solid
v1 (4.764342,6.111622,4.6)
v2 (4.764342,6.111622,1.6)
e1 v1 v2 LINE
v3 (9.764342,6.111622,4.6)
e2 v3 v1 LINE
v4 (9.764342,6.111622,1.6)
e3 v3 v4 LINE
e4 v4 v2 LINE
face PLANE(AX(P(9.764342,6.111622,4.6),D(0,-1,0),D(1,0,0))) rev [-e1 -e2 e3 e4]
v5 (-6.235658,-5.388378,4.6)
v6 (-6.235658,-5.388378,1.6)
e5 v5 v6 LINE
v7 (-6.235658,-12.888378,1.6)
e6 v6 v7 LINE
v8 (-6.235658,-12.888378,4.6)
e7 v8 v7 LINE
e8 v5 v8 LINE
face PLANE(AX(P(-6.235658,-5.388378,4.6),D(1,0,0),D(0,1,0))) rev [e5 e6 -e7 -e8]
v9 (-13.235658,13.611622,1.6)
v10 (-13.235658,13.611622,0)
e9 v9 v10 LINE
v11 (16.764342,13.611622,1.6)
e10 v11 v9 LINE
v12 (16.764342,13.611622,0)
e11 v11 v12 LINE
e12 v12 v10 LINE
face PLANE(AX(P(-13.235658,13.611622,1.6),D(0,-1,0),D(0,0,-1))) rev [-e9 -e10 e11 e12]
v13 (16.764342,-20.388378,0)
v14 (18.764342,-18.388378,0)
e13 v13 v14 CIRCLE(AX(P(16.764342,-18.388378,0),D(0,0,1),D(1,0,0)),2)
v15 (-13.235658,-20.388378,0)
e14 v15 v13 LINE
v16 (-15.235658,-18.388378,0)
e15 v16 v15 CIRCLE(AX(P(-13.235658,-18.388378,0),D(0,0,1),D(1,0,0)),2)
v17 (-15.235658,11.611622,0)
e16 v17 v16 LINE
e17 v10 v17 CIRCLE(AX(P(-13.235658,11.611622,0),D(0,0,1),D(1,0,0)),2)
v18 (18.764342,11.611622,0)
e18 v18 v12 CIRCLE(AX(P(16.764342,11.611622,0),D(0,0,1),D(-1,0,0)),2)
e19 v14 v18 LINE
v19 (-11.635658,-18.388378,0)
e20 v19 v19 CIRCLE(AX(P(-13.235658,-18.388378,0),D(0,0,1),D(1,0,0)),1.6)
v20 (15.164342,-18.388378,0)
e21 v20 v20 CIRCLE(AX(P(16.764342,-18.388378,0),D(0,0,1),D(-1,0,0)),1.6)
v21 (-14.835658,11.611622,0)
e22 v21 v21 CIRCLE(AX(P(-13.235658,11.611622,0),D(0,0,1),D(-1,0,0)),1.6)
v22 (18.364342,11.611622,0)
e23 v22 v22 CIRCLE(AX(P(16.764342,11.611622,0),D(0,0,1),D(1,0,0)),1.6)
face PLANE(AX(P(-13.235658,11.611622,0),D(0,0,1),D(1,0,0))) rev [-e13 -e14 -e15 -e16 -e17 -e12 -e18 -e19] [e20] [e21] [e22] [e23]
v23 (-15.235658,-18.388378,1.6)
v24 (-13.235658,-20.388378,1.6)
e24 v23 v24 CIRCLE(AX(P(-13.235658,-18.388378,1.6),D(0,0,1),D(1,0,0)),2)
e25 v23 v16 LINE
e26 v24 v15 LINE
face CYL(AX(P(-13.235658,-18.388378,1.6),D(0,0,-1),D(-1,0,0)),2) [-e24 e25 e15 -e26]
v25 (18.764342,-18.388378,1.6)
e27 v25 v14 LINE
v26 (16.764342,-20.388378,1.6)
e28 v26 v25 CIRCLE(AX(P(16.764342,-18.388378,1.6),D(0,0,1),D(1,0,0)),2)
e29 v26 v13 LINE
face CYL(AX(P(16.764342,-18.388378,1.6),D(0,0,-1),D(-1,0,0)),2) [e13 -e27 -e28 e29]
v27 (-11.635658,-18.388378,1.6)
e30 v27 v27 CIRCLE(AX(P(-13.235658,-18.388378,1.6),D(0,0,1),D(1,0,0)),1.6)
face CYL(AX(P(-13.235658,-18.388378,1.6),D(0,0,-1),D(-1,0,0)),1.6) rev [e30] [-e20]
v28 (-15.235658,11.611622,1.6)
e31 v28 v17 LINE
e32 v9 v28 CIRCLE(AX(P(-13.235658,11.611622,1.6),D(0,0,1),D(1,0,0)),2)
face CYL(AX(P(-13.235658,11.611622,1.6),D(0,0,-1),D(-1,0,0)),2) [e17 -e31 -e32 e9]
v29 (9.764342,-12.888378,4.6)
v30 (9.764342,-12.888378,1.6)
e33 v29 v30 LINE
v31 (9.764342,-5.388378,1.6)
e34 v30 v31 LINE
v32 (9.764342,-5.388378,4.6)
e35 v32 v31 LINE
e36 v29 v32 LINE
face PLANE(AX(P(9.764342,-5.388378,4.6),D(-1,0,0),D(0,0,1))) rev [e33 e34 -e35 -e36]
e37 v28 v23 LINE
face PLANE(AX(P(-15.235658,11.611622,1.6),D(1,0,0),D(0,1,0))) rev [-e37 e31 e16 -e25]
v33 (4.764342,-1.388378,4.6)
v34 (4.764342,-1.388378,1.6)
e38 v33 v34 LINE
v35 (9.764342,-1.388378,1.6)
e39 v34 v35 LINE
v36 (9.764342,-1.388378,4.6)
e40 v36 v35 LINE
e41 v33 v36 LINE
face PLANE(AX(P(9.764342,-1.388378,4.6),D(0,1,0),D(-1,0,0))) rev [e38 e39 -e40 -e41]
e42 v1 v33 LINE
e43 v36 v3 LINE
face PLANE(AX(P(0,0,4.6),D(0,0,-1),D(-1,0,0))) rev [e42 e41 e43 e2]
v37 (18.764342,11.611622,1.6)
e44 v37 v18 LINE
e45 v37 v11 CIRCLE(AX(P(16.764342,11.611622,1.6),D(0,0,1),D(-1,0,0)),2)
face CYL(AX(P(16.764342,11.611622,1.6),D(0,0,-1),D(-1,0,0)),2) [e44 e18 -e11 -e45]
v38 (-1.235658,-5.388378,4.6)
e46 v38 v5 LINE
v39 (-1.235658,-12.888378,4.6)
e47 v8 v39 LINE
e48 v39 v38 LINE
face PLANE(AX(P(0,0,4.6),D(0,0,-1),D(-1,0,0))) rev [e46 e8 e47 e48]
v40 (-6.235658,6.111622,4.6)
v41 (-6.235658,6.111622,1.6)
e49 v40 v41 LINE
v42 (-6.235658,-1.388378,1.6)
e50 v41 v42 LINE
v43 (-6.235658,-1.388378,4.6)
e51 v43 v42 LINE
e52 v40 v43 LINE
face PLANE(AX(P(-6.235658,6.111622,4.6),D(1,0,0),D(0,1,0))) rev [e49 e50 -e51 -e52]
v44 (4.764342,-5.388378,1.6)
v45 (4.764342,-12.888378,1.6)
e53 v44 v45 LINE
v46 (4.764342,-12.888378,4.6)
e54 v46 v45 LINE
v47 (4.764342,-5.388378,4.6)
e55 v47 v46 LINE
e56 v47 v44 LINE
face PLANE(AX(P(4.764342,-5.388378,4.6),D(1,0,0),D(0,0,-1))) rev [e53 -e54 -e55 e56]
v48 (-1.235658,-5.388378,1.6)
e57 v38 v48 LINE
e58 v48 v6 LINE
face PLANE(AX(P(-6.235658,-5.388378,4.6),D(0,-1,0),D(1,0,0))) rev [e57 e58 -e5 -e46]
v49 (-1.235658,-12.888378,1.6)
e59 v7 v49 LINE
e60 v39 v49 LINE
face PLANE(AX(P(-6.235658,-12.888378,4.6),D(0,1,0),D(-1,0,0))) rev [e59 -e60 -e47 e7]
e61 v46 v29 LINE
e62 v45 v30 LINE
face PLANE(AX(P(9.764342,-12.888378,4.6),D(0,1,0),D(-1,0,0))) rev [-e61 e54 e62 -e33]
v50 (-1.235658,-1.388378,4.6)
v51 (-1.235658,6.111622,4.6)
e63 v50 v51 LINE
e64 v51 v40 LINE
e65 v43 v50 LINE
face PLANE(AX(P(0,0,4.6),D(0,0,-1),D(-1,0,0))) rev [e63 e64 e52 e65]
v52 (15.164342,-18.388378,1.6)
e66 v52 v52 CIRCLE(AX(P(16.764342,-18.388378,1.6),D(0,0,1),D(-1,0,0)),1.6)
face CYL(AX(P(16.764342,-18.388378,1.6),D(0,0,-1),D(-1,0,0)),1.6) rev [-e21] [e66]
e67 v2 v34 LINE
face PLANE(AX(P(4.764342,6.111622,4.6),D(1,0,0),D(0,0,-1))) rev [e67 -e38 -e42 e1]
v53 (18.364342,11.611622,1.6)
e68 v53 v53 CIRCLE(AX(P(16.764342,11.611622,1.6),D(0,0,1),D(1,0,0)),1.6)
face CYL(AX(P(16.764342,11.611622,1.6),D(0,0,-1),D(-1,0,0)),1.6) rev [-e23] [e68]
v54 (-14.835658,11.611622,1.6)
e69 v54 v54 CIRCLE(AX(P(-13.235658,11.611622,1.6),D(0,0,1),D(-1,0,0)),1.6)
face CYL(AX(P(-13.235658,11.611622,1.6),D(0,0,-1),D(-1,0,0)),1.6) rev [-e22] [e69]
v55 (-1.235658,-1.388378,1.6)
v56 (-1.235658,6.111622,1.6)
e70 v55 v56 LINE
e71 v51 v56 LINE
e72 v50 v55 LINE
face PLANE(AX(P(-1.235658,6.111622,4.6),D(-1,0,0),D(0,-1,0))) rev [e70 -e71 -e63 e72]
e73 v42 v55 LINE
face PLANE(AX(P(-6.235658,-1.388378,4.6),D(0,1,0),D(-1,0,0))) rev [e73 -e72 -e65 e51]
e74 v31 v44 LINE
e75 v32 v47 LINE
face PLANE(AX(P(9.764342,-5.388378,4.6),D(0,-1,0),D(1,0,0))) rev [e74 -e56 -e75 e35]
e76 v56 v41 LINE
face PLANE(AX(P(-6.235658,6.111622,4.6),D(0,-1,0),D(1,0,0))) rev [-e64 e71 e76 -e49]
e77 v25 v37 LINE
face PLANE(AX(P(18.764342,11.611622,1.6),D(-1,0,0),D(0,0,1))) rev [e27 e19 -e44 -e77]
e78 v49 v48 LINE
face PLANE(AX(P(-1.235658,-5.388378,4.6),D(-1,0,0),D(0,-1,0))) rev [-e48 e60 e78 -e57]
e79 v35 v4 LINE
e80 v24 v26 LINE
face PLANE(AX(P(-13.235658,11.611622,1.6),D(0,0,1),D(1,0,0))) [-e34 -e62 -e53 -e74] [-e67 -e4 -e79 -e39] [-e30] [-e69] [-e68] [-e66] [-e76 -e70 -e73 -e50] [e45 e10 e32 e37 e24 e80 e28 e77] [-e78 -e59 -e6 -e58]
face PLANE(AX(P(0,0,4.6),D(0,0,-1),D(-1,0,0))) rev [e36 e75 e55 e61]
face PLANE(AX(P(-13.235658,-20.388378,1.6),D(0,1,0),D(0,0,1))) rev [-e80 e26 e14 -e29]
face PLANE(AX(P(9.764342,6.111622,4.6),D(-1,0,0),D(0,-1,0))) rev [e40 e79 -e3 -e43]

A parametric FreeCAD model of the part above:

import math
import FreeCAD as App
import Part
import Sketcher
Q = App.Units.Quantity


def add_polygon(sketch, points):
    """Adds a closed chain of lines whose ends are joined by coincident constraints."""
    first, n = sketch.GeometryCount, len(points)
    for a, b in zip(points, points[1:] + points[:1]):
        sketch.addGeometry(Part.LineSegment(App.Vector(*a, 0), App.Vector(*b, 0)), False)
    for i in range(n):
        sketch.addConstraint(Sketcher.Constraint("Coincident", first + i, 2, first + (i + 1) % n, 1))

doc = App.newDocument("Part")
body = doc.addObject("PartDesign::Body", "Body")

# Sketch on XY plane
sketch1 = doc.addObject("Sketcher::SketchObject", "Sketch")
body.addObject(sketch1)
sketch1.AttachmentSupport = (doc.XY_Plane, [""])
sketch1.MapMode = "FlatFace"
sketch1.addGeometry([
    Part.LineSegment(App.Vector(16.8, 13.6, 0), App.Vector(-13.2, 13.6, 0)),  # 0
    Part.ArcOfCircle(Part.Circle(App.Vector(-13.2, 11.6, 0), App.Vector(0, 0, 1), 2), math.radians(90), math.radians(180)),  # 1
    Part.LineSegment(App.Vector(-15.2, 11.6, 0), App.Vector(-15.2, -18.4, 0)),  # 2
    Part.ArcOfCircle(Part.Circle(App.Vector(-13.2, -18.4, 0), App.Vector(0, 0, 1), 2), math.radians(180), math.radians(270)),  # 3
    Part.LineSegment(App.Vector(-13.2, -20.4, 0), App.Vector(16.8, -20.4, 0)),  # 4
    Part.ArcOfCircle(Part.Circle(App.Vector(16.8, -18.4, 0), App.Vector(0, 0, 1), 2), math.radians(-90), math.radians(0)),  # 5
    Part.LineSegment(App.Vector(18.8, -18.4, 0), App.Vector(18.8, 11.6, 0)),  # 6
    Part.ArcOfCircle(Part.Circle(App.Vector(16.8, 11.6, 0), App.Vector(0, 0, 1), 2), math.radians(0), math.radians(90)),  # 7
    Part.Circle(App.Vector(16.8, -18.4, 0), App.Vector(0, 0, 1), 1.6),  # 8
    Part.Circle(App.Vector(-13.2, -18.4, 0), App.Vector(0, 0, 1), 1.6),  # 9
    Part.Circle(App.Vector(16.8, 11.6, 0), App.Vector(0, 0, 1), 1.6),  # 10
    Part.Circle(App.Vector(-13.2, 11.6, 0), App.Vector(0, 0, 1), 1.6),  # 11
], False)
sketch1.addConstraint([
    Sketcher.Constraint("Tangent", 0, 2, 1, 1),
    Sketcher.Constraint("Tangent", 1, 2, 2, 1),
    Sketcher.Constraint("Tangent", 2, 2, 3, 1),
    Sketcher.Constraint("Tangent", 3, 2, 4, 1),
    Sketcher.Constraint("Tangent", 4, 2, 5, 1),
    Sketcher.Constraint("Tangent", 5, 2, 6, 1),
    Sketcher.Constraint("Tangent", 6, 2, 7, 1),
    Sketcher.Constraint("Tangent", 7, 2, 0, 1),
    Sketcher.Constraint("Horizontal", 0),
    Sketcher.Constraint("Vertical", 2),
    Sketcher.Constraint("Horizontal", 4),
    Sketcher.Constraint("Vertical", 6),
    Sketcher.Constraint("Coincident", 8, 3, 5, 3),
    Sketcher.Constraint("Coincident", 9, 3, 3, 3),
    Sketcher.Constraint("Coincident", 10, 3, 7, 3),
    Sketcher.Constraint("Coincident", 11, 3, 1, 3),
    Sketcher.Constraint("Equal", 1, 3),
    Sketcher.Constraint("Equal", 3, 5),
    Sketcher.Constraint("Equal", 5, 7),
    Sketcher.Constraint("Equal", 8, 9),
    Sketcher.Constraint("Equal", 9, 10),
    Sketcher.Constraint("Equal", 10, 11),
    Sketcher.Constraint("Equal", 4, 2),
    Sketcher.Constraint("Radius", 1, Q("2 mm")),
    Sketcher.Constraint("Diameter", 8, Q("3.2 mm")),
    Sketcher.Constraint("DistanceX", 0, 2, 0, 1, Q("30 mm")),
    Sketcher.Constraint("DistanceX", 1, 3, -1, 1, Q("13.235658 mm")),
    Sketcher.Constraint("DistanceY", -1, 1, 1, 3, Q("11.611622 mm")),
])
pad1 = doc.addObject("PartDesign::Pad", "Pad")
body.addObject(pad1)
pad1.Profile = sketch1
pad1.Length = 1.6

# Sketch on XY plane
sketch2 = doc.addObject("Sketcher::SketchObject", "Sketch001")
body.addObject(sketch2)
sketch2.AttachmentSupport = (doc.XY_Plane, [""])
sketch2.MapMode = "FlatFace"
sketch2.AttachmentOffset = App.Placement(App.Vector(0, 0, 1.6), App.Rotation())
add_polygon(sketch2, [(5, 6), (5, -1), (10, -1), (10, 6)])  # lines 0-3
add_polygon(sketch2, [(5, -5), (5, -13), (10, -13), (10, -5)])  # lines 4-7
add_polygon(sketch2, [(-6, -5), (-6, -13), (-1, -13), (-1, -5)])  # lines 8-11
add_polygon(sketch2, [(-6, 6), (-6, -1), (-1, -1), (-1, 6)])  # lines 12-15
sketch2.addConstraint([
    Sketcher.Constraint("Vertical", 0),
    Sketcher.Constraint("Horizontal", 1),
    Sketcher.Constraint("Vertical", 2),
    Sketcher.Constraint("Horizontal", 3),
    Sketcher.Constraint("Vertical", 4),
    Sketcher.Constraint("Horizontal", 5),
    Sketcher.Constraint("Vertical", 6),
    Sketcher.Constraint("Horizontal", 7),
    Sketcher.Constraint("Vertical", 8),
    Sketcher.Constraint("Horizontal", 9),
    Sketcher.Constraint("Vertical", 10),
    Sketcher.Constraint("Horizontal", 11),
    Sketcher.Constraint("Vertical", 12),
    Sketcher.Constraint("Horizontal", 13),
    Sketcher.Constraint("Vertical", 14),
    Sketcher.Constraint("Horizontal", 15),
    Sketcher.Constraint("Horizontal", 5, 2, 8, 2),
    Sketcher.Constraint("Horizontal", 7, 2, 10, 2),
    Sketcher.Constraint("Horizontal", 1, 2, 12, 2),
    Sketcher.Constraint("Horizontal", 3, 2, 14, 2),
    Sketcher.Constraint("Vertical", 3, 2, 4, 2),
    Sketcher.Constraint("Vertical", 2, 2, 5, 2),
    Sketcher.Constraint("Vertical", 11, 2, 12, 2),
    Sketcher.Constraint("Vertical", 10, 2, 13, 2),
    Sketcher.Constraint("Equal", 7, 9),
    Sketcher.Constraint("Equal", 2, 4),
    Sketcher.Constraint("DistanceX", 1, 1, 1, 2, Q("5 mm")),
    Sketcher.Constraint("DistanceY", 0, 2, 0, 1, Q("7.5 mm")),
    Sketcher.Constraint("DistanceY", 4, 2, 3, 2, Q("19 mm")),
    Sketcher.Constraint("DistanceX", 8, 2, 4, 2, Q("11 mm")),
    Sketcher.Constraint("DistanceX", -1, 1, 0, 2, Q("4.764342 mm")),
    Sketcher.Constraint("DistanceY", 0, 2, -1, 1, Q("1.388378 mm")),
])
pad2 = doc.addObject("PartDesign::Pad", "Pad001")
body.addObject(pad2)
pad2.Profile = sketch2
pad2.Length = 3

doc.recompute()
